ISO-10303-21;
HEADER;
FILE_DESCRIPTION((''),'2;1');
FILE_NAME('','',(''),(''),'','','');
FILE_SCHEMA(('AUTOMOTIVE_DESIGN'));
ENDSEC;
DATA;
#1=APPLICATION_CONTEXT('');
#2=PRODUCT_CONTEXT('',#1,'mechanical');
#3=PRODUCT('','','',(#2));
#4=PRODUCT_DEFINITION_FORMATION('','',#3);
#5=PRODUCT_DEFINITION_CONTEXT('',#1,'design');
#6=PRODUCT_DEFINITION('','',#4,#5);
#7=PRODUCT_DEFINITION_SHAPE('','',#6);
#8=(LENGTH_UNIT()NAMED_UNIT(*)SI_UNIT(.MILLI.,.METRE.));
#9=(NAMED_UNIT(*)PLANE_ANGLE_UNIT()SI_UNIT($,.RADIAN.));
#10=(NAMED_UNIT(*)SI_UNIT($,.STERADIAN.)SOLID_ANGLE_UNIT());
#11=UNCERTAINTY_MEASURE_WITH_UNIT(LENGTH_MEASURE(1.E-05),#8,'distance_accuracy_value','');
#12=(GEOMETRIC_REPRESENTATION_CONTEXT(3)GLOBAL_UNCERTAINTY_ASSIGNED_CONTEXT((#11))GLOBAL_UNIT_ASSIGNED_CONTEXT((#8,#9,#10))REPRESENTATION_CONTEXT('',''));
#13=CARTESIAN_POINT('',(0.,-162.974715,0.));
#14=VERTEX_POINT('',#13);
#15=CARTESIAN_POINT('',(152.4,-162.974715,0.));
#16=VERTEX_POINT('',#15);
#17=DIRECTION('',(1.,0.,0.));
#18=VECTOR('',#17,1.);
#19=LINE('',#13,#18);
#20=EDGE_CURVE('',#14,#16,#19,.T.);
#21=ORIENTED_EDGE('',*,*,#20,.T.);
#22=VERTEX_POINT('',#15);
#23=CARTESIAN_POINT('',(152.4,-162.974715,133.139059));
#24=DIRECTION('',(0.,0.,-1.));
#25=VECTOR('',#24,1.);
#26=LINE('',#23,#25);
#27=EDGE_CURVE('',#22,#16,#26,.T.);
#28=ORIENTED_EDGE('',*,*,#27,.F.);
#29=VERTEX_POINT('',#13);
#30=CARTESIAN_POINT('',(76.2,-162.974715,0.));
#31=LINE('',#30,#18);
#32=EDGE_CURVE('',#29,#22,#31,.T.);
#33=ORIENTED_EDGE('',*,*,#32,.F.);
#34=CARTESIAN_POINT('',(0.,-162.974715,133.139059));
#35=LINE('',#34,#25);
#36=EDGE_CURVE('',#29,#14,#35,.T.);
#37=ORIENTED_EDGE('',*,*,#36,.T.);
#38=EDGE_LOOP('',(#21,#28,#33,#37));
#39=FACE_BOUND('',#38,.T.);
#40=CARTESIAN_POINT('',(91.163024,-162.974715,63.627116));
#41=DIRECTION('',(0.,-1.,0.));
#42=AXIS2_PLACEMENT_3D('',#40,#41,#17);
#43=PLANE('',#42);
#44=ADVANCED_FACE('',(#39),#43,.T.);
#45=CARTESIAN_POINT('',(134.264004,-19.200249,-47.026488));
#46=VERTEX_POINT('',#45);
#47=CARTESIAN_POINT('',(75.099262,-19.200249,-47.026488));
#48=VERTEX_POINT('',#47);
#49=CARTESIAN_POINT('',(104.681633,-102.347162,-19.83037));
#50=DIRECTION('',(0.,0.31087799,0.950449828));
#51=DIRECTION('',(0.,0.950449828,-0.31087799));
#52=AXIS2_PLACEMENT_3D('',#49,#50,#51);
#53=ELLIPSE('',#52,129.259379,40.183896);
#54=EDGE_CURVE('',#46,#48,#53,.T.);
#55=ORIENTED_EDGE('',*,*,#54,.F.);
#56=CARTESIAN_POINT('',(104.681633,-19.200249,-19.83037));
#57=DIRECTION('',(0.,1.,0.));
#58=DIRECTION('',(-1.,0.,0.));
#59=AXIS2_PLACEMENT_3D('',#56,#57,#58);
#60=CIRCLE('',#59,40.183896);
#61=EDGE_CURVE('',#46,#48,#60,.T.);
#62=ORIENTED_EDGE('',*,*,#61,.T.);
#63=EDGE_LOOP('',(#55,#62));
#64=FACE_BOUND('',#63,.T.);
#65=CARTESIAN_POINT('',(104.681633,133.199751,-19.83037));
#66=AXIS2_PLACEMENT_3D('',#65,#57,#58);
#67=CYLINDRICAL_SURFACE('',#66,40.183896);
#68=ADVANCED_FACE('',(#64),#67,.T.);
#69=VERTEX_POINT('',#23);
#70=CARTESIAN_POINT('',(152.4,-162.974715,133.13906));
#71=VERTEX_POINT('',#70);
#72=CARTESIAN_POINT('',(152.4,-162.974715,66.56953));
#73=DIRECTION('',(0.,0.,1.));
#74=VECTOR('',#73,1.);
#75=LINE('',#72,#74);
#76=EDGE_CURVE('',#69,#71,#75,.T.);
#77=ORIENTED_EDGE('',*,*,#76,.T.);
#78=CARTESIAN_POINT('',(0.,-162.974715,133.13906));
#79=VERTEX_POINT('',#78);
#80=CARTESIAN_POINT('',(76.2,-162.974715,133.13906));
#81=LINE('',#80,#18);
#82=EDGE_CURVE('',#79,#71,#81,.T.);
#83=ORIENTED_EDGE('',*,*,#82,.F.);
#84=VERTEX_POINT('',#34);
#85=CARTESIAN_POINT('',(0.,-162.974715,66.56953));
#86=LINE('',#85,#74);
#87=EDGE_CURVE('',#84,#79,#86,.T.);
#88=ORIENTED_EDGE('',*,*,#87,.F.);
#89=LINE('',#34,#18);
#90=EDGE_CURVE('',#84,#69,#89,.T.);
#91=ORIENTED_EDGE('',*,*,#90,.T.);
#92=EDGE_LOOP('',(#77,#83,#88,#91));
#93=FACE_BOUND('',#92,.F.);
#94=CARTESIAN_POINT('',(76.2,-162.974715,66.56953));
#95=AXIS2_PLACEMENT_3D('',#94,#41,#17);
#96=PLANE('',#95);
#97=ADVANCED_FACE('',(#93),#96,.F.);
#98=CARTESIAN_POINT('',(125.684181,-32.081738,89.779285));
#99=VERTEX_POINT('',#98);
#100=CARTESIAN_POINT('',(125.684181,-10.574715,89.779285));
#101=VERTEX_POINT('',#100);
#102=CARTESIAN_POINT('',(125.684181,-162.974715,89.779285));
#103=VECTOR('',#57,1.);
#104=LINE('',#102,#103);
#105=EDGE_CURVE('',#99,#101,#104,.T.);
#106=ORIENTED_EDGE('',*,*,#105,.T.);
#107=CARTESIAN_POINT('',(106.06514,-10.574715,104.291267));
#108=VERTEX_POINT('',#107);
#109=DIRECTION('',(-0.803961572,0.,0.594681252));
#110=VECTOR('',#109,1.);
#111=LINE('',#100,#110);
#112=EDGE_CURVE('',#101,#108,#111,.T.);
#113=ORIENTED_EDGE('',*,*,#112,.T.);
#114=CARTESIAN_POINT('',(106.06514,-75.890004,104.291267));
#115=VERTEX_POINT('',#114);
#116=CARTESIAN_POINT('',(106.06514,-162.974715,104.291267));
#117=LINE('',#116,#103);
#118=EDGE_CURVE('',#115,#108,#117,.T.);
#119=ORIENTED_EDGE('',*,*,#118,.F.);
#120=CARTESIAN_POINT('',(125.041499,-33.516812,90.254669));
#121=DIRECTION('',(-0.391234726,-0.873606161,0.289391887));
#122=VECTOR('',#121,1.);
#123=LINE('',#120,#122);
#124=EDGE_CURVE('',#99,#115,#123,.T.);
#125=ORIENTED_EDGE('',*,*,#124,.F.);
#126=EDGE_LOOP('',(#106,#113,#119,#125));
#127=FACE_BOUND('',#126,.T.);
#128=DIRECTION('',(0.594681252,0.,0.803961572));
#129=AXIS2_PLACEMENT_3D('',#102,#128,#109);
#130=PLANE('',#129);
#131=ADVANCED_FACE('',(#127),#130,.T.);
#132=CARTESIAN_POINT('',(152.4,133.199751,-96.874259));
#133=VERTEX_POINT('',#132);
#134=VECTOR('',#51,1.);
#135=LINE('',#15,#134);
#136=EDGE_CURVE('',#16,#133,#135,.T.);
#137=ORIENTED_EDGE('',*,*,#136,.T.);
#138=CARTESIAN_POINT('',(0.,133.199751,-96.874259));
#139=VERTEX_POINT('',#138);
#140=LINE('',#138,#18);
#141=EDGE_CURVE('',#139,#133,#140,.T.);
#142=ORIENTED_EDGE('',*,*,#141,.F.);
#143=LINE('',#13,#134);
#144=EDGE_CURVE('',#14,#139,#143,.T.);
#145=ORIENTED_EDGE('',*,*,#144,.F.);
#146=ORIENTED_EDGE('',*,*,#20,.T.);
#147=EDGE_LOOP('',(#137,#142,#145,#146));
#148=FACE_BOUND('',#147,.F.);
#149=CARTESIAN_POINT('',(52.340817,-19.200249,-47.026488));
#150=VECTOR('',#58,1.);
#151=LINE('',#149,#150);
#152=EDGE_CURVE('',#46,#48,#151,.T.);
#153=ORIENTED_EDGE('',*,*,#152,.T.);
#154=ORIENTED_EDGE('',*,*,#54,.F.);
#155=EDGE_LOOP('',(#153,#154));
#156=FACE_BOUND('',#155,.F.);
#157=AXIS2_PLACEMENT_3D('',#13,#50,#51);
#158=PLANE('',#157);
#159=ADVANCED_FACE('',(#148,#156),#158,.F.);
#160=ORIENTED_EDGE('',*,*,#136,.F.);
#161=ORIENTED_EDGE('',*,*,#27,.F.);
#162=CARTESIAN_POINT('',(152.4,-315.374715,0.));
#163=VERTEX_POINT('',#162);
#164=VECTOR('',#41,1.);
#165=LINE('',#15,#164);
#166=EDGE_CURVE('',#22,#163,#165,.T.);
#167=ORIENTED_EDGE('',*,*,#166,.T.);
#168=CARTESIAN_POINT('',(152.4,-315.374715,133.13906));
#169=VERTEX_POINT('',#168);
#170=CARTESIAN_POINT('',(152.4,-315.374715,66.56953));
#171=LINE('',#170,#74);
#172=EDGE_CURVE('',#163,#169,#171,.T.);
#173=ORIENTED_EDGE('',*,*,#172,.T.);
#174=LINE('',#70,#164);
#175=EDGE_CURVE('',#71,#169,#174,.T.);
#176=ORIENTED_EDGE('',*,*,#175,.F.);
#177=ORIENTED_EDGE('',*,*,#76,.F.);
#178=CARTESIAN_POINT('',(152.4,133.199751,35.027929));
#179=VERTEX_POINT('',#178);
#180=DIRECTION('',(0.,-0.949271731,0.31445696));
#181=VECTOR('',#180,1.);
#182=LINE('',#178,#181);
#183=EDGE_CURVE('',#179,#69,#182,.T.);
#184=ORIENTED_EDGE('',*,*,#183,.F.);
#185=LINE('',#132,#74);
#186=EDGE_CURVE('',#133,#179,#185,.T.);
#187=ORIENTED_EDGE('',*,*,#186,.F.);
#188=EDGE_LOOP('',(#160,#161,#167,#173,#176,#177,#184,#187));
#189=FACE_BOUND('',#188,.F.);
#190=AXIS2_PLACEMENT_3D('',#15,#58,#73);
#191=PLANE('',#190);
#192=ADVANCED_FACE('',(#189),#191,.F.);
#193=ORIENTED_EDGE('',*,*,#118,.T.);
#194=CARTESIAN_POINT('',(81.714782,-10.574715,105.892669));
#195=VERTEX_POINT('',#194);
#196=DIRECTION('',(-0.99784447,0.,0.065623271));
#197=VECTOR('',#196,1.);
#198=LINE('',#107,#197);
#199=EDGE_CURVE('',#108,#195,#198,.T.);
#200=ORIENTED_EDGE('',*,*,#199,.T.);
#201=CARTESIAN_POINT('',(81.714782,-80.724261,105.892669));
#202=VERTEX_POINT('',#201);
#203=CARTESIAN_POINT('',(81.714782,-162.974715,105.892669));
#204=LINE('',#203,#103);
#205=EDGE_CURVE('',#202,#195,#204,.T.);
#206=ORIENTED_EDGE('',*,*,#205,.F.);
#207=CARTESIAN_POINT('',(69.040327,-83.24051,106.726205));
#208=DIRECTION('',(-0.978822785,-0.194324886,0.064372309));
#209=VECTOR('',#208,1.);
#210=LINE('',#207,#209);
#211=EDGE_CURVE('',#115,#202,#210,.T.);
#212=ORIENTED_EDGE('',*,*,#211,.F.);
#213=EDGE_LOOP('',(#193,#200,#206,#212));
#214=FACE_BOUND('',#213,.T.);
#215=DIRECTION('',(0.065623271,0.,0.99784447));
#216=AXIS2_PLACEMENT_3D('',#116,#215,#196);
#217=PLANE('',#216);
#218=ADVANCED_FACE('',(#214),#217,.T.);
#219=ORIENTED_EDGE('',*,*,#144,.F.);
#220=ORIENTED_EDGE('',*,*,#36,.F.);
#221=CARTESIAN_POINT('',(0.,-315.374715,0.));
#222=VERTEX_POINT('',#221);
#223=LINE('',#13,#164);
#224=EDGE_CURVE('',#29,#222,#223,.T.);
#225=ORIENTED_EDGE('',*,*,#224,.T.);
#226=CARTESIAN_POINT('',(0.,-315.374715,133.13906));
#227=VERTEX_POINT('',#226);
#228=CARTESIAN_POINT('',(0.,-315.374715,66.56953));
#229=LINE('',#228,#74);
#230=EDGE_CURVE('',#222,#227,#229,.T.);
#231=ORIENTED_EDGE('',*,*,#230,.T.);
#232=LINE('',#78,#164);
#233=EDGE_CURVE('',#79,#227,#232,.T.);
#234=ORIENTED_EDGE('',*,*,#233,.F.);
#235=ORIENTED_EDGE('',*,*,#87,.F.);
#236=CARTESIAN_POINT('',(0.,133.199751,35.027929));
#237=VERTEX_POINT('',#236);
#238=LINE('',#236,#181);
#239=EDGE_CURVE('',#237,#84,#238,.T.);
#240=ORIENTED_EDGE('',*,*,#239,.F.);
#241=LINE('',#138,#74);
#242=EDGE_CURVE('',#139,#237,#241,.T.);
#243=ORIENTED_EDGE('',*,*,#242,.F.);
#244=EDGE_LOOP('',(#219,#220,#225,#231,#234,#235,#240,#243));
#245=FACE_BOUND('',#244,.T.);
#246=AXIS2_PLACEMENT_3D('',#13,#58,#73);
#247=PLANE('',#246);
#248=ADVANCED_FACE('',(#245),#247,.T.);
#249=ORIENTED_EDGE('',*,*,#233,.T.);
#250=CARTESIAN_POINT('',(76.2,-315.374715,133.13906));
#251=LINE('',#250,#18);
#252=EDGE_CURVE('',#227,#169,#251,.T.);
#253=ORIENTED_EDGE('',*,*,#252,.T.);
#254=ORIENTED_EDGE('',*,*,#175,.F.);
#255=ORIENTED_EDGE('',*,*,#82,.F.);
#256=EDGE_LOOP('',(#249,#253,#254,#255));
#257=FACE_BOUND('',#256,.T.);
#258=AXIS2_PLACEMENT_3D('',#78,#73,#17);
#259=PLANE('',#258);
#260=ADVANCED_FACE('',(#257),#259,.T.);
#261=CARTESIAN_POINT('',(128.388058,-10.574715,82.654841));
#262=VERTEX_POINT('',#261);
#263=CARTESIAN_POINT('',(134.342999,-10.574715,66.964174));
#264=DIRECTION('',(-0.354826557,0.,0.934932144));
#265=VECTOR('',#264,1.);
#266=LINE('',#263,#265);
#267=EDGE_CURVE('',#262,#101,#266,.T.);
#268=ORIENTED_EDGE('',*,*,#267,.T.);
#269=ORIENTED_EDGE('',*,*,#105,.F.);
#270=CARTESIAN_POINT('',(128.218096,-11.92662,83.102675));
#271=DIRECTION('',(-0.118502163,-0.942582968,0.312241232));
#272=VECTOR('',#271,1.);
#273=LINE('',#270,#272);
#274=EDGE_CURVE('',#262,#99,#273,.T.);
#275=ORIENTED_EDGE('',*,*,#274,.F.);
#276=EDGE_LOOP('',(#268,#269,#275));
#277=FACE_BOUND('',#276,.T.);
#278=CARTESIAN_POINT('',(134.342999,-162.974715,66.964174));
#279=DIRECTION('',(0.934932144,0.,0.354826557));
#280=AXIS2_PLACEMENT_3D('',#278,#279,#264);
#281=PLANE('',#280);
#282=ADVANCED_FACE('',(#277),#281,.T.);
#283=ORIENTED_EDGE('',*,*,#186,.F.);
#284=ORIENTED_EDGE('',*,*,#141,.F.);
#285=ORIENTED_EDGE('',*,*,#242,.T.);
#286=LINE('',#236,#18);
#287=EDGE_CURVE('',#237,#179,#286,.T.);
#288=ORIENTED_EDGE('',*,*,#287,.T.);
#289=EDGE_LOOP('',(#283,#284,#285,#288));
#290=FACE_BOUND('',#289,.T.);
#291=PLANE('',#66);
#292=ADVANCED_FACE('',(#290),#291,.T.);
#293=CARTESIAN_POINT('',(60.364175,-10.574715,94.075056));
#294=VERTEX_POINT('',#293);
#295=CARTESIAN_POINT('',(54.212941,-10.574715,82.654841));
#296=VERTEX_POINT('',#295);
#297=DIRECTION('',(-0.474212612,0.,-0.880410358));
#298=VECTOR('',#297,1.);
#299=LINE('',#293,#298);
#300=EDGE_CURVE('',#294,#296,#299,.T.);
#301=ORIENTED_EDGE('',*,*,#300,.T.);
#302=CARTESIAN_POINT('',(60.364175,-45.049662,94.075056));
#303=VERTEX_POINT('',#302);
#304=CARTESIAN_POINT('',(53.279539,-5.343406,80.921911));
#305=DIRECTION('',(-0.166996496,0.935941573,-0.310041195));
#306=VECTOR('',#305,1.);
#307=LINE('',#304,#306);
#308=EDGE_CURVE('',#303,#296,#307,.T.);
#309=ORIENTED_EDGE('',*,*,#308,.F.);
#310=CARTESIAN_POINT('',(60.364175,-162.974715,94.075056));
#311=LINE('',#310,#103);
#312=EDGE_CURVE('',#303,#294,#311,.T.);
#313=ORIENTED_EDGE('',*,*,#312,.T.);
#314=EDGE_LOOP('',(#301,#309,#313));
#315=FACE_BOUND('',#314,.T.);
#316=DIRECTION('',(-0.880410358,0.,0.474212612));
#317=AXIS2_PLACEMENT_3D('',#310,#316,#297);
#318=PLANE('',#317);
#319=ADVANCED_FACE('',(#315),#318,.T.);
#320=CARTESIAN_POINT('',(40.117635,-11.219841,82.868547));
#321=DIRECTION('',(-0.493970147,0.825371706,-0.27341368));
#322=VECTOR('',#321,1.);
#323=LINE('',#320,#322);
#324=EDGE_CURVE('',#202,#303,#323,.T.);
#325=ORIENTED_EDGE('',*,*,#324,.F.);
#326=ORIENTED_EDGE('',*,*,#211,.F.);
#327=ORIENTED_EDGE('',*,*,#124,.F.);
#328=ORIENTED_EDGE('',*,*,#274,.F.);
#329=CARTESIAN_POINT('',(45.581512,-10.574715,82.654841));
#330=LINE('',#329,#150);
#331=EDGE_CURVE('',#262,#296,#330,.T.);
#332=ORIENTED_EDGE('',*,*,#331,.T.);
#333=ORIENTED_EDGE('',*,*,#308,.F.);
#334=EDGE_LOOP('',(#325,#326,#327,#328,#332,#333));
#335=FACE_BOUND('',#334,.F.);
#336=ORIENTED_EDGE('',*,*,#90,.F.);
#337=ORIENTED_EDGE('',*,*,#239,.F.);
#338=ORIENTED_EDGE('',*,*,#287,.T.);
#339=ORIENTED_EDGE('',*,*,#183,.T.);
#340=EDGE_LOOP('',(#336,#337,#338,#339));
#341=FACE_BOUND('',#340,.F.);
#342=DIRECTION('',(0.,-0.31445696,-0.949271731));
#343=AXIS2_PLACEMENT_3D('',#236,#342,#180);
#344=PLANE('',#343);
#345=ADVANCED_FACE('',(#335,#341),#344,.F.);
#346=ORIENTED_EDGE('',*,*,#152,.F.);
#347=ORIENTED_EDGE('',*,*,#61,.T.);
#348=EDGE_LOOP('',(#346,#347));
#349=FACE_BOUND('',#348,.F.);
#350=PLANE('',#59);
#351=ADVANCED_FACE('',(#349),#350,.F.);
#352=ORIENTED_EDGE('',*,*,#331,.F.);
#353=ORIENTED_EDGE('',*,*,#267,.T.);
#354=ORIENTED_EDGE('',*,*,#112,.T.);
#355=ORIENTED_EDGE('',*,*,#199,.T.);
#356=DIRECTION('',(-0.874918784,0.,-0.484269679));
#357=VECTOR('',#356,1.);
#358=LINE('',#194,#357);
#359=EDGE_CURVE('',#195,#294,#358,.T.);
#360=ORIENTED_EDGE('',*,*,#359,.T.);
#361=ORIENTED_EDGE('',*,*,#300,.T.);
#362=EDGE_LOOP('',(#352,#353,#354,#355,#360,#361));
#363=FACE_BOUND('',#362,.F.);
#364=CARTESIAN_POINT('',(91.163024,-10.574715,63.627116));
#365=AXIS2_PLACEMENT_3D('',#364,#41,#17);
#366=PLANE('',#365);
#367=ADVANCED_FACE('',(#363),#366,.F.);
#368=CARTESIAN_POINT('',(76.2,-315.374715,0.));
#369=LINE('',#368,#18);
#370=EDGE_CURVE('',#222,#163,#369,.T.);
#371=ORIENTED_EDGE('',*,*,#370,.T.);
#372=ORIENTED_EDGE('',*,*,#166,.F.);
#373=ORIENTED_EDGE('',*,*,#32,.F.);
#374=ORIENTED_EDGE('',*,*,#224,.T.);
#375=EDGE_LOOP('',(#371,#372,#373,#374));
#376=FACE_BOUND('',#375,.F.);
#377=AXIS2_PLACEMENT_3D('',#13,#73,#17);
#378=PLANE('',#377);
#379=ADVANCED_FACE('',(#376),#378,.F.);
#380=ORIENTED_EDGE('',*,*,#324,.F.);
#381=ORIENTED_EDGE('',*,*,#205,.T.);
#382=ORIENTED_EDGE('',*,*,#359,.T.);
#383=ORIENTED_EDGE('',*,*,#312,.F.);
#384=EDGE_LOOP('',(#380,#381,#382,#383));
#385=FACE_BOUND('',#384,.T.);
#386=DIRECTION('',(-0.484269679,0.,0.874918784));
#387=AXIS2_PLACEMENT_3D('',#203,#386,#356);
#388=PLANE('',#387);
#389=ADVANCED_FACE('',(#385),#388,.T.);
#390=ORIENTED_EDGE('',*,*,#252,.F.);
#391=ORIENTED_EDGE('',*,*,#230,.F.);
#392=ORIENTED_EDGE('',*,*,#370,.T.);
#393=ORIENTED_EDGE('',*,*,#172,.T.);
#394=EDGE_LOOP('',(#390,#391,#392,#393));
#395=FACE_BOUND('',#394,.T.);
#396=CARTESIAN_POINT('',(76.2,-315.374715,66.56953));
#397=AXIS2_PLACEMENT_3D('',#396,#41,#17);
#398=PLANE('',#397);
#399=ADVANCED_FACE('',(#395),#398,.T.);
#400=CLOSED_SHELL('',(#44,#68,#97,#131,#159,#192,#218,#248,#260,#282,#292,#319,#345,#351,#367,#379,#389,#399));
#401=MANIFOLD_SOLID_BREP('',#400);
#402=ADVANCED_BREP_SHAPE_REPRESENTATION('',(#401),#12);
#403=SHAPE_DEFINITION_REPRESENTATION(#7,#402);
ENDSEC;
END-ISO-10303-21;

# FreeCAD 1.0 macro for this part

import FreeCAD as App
import Part
import Sketcher

V = App.Vector
Q = App.Units.Quantity


def add_polygon(sketch, points):
    """Adds a closed chain of lines whose ends are joined by coincident constraints."""
    first, n = sketch.GeometryCount, len(points)
    for a, b in zip(points, points[1:] + points[:1]):
        sketch.addGeometry(Part.LineSegment(App.Vector(*a, 0), App.Vector(*b, 0)), False)
    for i in range(n):
        sketch.addConstraint(Sketcher.Constraint("Coincident", first + i, 2, first + (i + 1) % n, 1))

doc = App.newDocument("Part")
params = doc.addObject("Spreadsheet::Sheet", "Params")
for row, (alias, value) in enumerate([
    ("pad1_length", "6 in"),
    ("pad2_length", "6 in"),
    ("pad3_length", "6 in"),
    ("sketch4_width", "6 in"),
    ("pad4_length", "6 in"),
], start=1):
    params.set(f"A{row}", alias)
    params.set(f"B{row}", "=" + value)
    params.setAlias(f"B{row}", alias)

body = doc.addObject("PartDesign::Body", "Body")

sketch1 = body.newObject("Sketcher::SketchObject", "Sketch")
sketch1.AttachmentSupport = (doc.getObject("YZ_Plane"), [""])
sketch1.MapMode = "FlatFace"
add_polygon(sketch1, [(133, -97), (133, 35), (-163, 133), (-163, 0)])
sketch1.addConstraint([
    Sketcher.Constraint("Vertical", 0),
    Sketcher.Constraint("Vertical", 2),
    Sketcher.Constraint("PointOnObject", 2, 2, -1),
    Sketcher.Constraint("DistanceY", 0, 1, 0, 2, 131.902188),
    Sketcher.Constraint("DistanceY", 2, 2, 2, 1, 133.139059),
    Sketcher.Constraint("DistanceX", -1, 1, 0, 2, 133.199751),
    Sketcher.Constraint("DistanceY", -1, 1, 0, 2, 35.027929),
    Sketcher.Constraint("Distance", 1, 312.001776),
])
pad1 = body.newObject("PartDesign::Pad", "Pad")
pad1.Profile = sketch1
pad1.setExpression("Length", "Params.pad1_length")

sketch2 = body.newObject("Sketcher::SketchObject", "Sketch001")
sketch2.AttachmentSupport = (doc.getObject("XZ_Plane"), [""])
sketch2.MapMode = "FlatFace"
sketch2.AttachmentOffset = App.Placement(V(0, 0, -133.199751), App.Rotation())
sketch2.addGeometry(Part.Circle(V(105, -20, 0), V(0, 0, 1), 40), False)
sketch2.addConstraint([
    Sketcher.Constraint("Diameter", 0, 80.367792),
    Sketcher.Constraint("DistanceY", 0, 3, -1, 1, 19.83037),
    Sketcher.Constraint("DistanceX", -1, 1, 0, 3, 104.681633),
])
pad2 = body.newObject("PartDesign::Pad", "Pad001")
pad2.Profile = sketch2
pad2.setExpression("Length", "Params.pad2_length")

sketch3 = body.newObject("Sketcher::SketchObject", "Sketch002")
sketch3.AttachmentSupport = (doc.getObject("XZ_Plane"), [""])
sketch3.MapMode = "FlatFace"
sketch3.AttachmentOffset = App.Placement(V(0, 0, 162.974715), App.Rotation())
add_polygon(sketch3, [(50.672299, 48.260029), (65.408134, 28.808561), (88.320964, 20.411739), (112.136128, 25.735493), (129.29248, 43.089571), (134.342999, 66.964174), (125.684181, 89.779285), (106.06514, 104.291267), (81.714782, 105.892669), (60.364175, 94.075056), (48.791984, 72.590438)])
sketch3.addConstraint([
    Sketcher.Constraint("DistanceX", -1, 1, 4, 2, 134.342999),
    Sketcher.Constraint("DistanceX", -1, 1, 10, 2, 50.672299),
    Sketcher.Constraint("DistanceX", 5, 2, 3, 2, 3.608299),
    Sketcher.Constraint("DistanceY", 6, 2, 7, 2, 1.601402),
    Sketcher.Constraint("DistanceX", 7, 2, 5, 2, 43.969399),
    Sketcher.Constraint("DistanceY", 1, 2, 9, 2, 52.178699),
    Sketcher.Constraint("Distance", 0, 24.40296),
    Sketcher.Constraint("Distance", 1, 24.402959),
    Sketcher.Constraint("Distance", 2, 24.402959),
    Sketcher.Constraint("Distance", 3, 24.40296),
    Sketcher.Constraint("Distance", 4, 24.402959),
    Sketcher.Constraint("Distance", 5, 24.402959),
    Sketcher.Constraint("Distance", 6, 24.402959),
    Sketcher.Constraint("Distance", 7, 24.402959),
    Sketcher.Constraint("Distance", 8, 24.402959),
    Sketcher.Constraint("Distance", 9, 24.402959),
    Sketcher.Constraint("Distance", 10, 24.402959),
    Sketcher.Constraint("DistanceY", -1, 1, 0, 2, 28.808561),
    Sketcher.Constraint("DistanceY", -1, 1, 1, 2, 20.411739),
    Sketcher.Constraint("DistanceX", -1, 1, 2, 2, 112.136128),
    Sketcher.Constraint("DistanceX", -1, 1, 3, 2, 129.29248),
    Sketcher.Constraint("DistanceY", -1, 1, 3, 2, 43.089571),
])
pad3 = body.newObject("PartDesign::Pad", "Pad002")
pad3.Profile = sketch3
pad3.setExpression("Length", "Params.pad3_length")
pad3.Reversed = True

sketch4 = body.newObject("Sketcher::SketchObject", "Sketch003")
sketch4.AttachmentSupport = (doc.getObject("XZ_Plane"), [""])
sketch4.MapMode = "FlatFace"
sketch4.AttachmentOffset = App.Placement(V(0, 0, 162.974715), App.Rotation())
add_polygon(sketch4, [(0, 133), (0, 0), (152, 0), (152, 133)])
sketch4.addConstraint([
    Sketcher.Constraint("Vertical", 0),
    Sketcher.Constraint("Horizontal", 1),
    Sketcher.Constraint("Vertical", 2),
    Sketcher.Constraint("Horizontal", 3),
    Sketcher.Constraint("Coincident", 0, 2, -1, 1),
    Sketcher.Constraint("DistanceX", 1, 1, 1, 2, Q("6 in")),
    Sketcher.Constraint("DistanceY", 0, 2, 0, 1, 133.139059),
])
sketch4.setExpression("Constraints[9]", "Params.sketch4_width")
pad4 = body.newObject("PartDesign::Pad", "Pad003")
pad4.Profile = sketch4
pad4.setExpression("Length", "Params.pad4_length")

doc.recompute()
